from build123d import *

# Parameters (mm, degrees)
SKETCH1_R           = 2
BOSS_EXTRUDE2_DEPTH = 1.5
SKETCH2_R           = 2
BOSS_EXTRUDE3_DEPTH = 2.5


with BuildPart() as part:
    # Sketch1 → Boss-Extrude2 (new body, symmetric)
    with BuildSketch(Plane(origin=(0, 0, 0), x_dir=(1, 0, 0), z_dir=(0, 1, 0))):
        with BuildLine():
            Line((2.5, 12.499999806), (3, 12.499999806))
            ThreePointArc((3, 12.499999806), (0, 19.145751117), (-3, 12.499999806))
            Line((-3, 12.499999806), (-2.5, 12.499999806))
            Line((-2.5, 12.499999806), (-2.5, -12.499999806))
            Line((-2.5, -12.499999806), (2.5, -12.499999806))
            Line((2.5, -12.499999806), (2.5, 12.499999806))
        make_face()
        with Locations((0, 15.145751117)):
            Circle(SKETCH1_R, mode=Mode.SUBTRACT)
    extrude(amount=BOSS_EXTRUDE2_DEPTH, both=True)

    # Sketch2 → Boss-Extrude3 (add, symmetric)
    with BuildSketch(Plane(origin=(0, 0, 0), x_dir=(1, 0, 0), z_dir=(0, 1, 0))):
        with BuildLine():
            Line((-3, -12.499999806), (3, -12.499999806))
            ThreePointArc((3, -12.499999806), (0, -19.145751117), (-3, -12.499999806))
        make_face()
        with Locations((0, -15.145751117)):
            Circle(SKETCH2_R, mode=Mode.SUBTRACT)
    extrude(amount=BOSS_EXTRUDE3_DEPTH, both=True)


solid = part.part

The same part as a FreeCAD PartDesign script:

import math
import FreeCAD as App
import Part
import Sketcher

V = App.Vector

doc = App.newDocument("Part")
body = doc.addObject("PartDesign::Body", "Body")

sketch1 = doc.addObject("Sketcher::SketchObject", "Sketch")
body.addObject(sketch1)
sketch1.AttachmentSupport = (doc.XZ_Plane, [""])
sketch1.MapMode = "FlatFace"
sketch1.addGeometry(Part.LineSegment(V(2.5, -12.5, 0), V(3, -12.5, 0)), False)
sketch1.addGeometry(Part.ArcOfCircle(Part.Circle(V(0, -15.145751, 0), V(0, 0, 1), 4), math.radians(138.590378), math.radians(401.409622)), False)
sketch1.addGeometry(Part.LineSegment(V(-3, -12.5, 0), V(-2.5, -12.5, 0)), False)
sketch1.addGeometry(Part.LineSegment(V(-2.5, -12.5, 0), V(-2.5, 12.5, 0)), False)
sketch1.addGeometry(Part.LineSegment(V(-2.5, 12.5, 0), V(2.5, 12.5, 0)), False)
sketch1.addGeometry(Part.LineSegment(V(2.5, 12.5, 0), V(2.5, -12.5, 0)), False)
sketch1.addGeometry(Part.Circle(V(0, -15.145751, 0), V(0, 0, 1), 2), False)
sketch1.addConstraint(Sketcher.Constraint("Coincident", 0, 2, 1, 2))
sketch1.addConstraint(Sketcher.Constraint("Coincident", 1, 1, 2, 1))
sketch1.addConstraint(Sketcher.Constraint("Coincident", 2, 2, 3, 1))
sketch1.addConstraint(Sketcher.Constraint("Coincident", 3, 2, 4, 1))
sketch1.addConstraint(Sketcher.Constraint("Coincident", 4, 2, 5, 1))
sketch1.addConstraint(Sketcher.Constraint("Coincident", 5, 2, 0, 1))
sketch1.addConstraint(Sketcher.Constraint("Horizontal", 0))
sketch1.addConstraint(Sketcher.Constraint("Horizontal", 2))
sketch1.addConstraint(Sketcher.Constraint("Vertical", 3))
sketch1.addConstraint(Sketcher.Constraint("Horizontal", 4))
sketch1.addConstraint(Sketcher.Constraint("Vertical", 5))
sketch1.addConstraint(Sketcher.Constraint("Coincident", 6, 3, 1, 3))
sketch1.addConstraint(Sketcher.Constraint("Symmetric", 2, 2, 4, 2, -1, 1))
sketch1.addConstraint(Sketcher.Constraint("Symmetric", 0, 2, 1, 1, -2))
sketch1.addConstraint(Sketcher.Constraint("Diameter", 6, 4.0))
sketch1.addConstraint(Sketcher.Constraint("Radius", 1, 4.0))
sketch1.addConstraint(Sketcher.Constraint("DistanceX", 4, 1, 4, 2, 5.0))
sketch1.addConstraint(Sketcher.Constraint("DistanceY", 3, 1, 3, 2, 25.0))
sketch1.addConstraint(Sketcher.Constraint("DistanceX", 0, 1, 0, 2, 0.5))
pad1 = doc.addObject("PartDesign::Pad", "Pad")
body.addObject(pad1)
pad1.Profile = sketch1
pad1.Length = 3
pad1.Midplane = True

sketch2 = doc.addObject("Sketcher::SketchObject", "Sketch001")
body.addObject(sketch2)
sketch2.AttachmentSupport = (doc.XZ_Plane, [""])
sketch2.MapMode = "FlatFace"
sketch2.addGeometry(Part.LineSegment(V(3, 12.5, 0), V(-3, 12.5, 0)), False)
sketch2.addGeometry(Part.ArcOfCircle(Part.Circle(V(0, 15.145751, 0), V(0, 0, 1), 4), math.radians(-41.409622), math.radians(221.409622)), False)
sketch2.addGeometry(Part.Circle(V(0, 15.145751, 0), V(0, 0, 1), 2), False)
sketch2.addConstraint(Sketcher.Constraint("Coincident", 0, 1, 1, 1))
sketch2.addConstraint(Sketcher.Constraint("Coincident", 1, 2, 0, 2))
sketch2.addConstraint(Sketcher.Constraint("Horizontal", 0))
sketch2.addConstraint(Sketcher.Constraint("Coincident", 2, 3, 1, 3))
sketch2.addConstraint(Sketcher.Constraint("PointOnObject", 1, 3, -2))
sketch2.addConstraint(Sketcher.Constraint("Diameter", 2, 4.0))
sketch2.addConstraint(Sketcher.Constraint("Radius", 1, 4.0))
sketch2.addConstraint(Sketcher.Constraint("DistanceX", 0, 2, 0, 1, 6.0))
sketch2.addConstraint(Sketcher.Constraint("DistanceY", -1, 1, 0, 1, 12.5))
pad2 = doc.addObject("PartDesign::Pad", "Pad001")
body.addObject(pad2)
pad2.Profile = sketch2
pad2.Length = 5
pad2.Midplane = True

doc.recompute()
